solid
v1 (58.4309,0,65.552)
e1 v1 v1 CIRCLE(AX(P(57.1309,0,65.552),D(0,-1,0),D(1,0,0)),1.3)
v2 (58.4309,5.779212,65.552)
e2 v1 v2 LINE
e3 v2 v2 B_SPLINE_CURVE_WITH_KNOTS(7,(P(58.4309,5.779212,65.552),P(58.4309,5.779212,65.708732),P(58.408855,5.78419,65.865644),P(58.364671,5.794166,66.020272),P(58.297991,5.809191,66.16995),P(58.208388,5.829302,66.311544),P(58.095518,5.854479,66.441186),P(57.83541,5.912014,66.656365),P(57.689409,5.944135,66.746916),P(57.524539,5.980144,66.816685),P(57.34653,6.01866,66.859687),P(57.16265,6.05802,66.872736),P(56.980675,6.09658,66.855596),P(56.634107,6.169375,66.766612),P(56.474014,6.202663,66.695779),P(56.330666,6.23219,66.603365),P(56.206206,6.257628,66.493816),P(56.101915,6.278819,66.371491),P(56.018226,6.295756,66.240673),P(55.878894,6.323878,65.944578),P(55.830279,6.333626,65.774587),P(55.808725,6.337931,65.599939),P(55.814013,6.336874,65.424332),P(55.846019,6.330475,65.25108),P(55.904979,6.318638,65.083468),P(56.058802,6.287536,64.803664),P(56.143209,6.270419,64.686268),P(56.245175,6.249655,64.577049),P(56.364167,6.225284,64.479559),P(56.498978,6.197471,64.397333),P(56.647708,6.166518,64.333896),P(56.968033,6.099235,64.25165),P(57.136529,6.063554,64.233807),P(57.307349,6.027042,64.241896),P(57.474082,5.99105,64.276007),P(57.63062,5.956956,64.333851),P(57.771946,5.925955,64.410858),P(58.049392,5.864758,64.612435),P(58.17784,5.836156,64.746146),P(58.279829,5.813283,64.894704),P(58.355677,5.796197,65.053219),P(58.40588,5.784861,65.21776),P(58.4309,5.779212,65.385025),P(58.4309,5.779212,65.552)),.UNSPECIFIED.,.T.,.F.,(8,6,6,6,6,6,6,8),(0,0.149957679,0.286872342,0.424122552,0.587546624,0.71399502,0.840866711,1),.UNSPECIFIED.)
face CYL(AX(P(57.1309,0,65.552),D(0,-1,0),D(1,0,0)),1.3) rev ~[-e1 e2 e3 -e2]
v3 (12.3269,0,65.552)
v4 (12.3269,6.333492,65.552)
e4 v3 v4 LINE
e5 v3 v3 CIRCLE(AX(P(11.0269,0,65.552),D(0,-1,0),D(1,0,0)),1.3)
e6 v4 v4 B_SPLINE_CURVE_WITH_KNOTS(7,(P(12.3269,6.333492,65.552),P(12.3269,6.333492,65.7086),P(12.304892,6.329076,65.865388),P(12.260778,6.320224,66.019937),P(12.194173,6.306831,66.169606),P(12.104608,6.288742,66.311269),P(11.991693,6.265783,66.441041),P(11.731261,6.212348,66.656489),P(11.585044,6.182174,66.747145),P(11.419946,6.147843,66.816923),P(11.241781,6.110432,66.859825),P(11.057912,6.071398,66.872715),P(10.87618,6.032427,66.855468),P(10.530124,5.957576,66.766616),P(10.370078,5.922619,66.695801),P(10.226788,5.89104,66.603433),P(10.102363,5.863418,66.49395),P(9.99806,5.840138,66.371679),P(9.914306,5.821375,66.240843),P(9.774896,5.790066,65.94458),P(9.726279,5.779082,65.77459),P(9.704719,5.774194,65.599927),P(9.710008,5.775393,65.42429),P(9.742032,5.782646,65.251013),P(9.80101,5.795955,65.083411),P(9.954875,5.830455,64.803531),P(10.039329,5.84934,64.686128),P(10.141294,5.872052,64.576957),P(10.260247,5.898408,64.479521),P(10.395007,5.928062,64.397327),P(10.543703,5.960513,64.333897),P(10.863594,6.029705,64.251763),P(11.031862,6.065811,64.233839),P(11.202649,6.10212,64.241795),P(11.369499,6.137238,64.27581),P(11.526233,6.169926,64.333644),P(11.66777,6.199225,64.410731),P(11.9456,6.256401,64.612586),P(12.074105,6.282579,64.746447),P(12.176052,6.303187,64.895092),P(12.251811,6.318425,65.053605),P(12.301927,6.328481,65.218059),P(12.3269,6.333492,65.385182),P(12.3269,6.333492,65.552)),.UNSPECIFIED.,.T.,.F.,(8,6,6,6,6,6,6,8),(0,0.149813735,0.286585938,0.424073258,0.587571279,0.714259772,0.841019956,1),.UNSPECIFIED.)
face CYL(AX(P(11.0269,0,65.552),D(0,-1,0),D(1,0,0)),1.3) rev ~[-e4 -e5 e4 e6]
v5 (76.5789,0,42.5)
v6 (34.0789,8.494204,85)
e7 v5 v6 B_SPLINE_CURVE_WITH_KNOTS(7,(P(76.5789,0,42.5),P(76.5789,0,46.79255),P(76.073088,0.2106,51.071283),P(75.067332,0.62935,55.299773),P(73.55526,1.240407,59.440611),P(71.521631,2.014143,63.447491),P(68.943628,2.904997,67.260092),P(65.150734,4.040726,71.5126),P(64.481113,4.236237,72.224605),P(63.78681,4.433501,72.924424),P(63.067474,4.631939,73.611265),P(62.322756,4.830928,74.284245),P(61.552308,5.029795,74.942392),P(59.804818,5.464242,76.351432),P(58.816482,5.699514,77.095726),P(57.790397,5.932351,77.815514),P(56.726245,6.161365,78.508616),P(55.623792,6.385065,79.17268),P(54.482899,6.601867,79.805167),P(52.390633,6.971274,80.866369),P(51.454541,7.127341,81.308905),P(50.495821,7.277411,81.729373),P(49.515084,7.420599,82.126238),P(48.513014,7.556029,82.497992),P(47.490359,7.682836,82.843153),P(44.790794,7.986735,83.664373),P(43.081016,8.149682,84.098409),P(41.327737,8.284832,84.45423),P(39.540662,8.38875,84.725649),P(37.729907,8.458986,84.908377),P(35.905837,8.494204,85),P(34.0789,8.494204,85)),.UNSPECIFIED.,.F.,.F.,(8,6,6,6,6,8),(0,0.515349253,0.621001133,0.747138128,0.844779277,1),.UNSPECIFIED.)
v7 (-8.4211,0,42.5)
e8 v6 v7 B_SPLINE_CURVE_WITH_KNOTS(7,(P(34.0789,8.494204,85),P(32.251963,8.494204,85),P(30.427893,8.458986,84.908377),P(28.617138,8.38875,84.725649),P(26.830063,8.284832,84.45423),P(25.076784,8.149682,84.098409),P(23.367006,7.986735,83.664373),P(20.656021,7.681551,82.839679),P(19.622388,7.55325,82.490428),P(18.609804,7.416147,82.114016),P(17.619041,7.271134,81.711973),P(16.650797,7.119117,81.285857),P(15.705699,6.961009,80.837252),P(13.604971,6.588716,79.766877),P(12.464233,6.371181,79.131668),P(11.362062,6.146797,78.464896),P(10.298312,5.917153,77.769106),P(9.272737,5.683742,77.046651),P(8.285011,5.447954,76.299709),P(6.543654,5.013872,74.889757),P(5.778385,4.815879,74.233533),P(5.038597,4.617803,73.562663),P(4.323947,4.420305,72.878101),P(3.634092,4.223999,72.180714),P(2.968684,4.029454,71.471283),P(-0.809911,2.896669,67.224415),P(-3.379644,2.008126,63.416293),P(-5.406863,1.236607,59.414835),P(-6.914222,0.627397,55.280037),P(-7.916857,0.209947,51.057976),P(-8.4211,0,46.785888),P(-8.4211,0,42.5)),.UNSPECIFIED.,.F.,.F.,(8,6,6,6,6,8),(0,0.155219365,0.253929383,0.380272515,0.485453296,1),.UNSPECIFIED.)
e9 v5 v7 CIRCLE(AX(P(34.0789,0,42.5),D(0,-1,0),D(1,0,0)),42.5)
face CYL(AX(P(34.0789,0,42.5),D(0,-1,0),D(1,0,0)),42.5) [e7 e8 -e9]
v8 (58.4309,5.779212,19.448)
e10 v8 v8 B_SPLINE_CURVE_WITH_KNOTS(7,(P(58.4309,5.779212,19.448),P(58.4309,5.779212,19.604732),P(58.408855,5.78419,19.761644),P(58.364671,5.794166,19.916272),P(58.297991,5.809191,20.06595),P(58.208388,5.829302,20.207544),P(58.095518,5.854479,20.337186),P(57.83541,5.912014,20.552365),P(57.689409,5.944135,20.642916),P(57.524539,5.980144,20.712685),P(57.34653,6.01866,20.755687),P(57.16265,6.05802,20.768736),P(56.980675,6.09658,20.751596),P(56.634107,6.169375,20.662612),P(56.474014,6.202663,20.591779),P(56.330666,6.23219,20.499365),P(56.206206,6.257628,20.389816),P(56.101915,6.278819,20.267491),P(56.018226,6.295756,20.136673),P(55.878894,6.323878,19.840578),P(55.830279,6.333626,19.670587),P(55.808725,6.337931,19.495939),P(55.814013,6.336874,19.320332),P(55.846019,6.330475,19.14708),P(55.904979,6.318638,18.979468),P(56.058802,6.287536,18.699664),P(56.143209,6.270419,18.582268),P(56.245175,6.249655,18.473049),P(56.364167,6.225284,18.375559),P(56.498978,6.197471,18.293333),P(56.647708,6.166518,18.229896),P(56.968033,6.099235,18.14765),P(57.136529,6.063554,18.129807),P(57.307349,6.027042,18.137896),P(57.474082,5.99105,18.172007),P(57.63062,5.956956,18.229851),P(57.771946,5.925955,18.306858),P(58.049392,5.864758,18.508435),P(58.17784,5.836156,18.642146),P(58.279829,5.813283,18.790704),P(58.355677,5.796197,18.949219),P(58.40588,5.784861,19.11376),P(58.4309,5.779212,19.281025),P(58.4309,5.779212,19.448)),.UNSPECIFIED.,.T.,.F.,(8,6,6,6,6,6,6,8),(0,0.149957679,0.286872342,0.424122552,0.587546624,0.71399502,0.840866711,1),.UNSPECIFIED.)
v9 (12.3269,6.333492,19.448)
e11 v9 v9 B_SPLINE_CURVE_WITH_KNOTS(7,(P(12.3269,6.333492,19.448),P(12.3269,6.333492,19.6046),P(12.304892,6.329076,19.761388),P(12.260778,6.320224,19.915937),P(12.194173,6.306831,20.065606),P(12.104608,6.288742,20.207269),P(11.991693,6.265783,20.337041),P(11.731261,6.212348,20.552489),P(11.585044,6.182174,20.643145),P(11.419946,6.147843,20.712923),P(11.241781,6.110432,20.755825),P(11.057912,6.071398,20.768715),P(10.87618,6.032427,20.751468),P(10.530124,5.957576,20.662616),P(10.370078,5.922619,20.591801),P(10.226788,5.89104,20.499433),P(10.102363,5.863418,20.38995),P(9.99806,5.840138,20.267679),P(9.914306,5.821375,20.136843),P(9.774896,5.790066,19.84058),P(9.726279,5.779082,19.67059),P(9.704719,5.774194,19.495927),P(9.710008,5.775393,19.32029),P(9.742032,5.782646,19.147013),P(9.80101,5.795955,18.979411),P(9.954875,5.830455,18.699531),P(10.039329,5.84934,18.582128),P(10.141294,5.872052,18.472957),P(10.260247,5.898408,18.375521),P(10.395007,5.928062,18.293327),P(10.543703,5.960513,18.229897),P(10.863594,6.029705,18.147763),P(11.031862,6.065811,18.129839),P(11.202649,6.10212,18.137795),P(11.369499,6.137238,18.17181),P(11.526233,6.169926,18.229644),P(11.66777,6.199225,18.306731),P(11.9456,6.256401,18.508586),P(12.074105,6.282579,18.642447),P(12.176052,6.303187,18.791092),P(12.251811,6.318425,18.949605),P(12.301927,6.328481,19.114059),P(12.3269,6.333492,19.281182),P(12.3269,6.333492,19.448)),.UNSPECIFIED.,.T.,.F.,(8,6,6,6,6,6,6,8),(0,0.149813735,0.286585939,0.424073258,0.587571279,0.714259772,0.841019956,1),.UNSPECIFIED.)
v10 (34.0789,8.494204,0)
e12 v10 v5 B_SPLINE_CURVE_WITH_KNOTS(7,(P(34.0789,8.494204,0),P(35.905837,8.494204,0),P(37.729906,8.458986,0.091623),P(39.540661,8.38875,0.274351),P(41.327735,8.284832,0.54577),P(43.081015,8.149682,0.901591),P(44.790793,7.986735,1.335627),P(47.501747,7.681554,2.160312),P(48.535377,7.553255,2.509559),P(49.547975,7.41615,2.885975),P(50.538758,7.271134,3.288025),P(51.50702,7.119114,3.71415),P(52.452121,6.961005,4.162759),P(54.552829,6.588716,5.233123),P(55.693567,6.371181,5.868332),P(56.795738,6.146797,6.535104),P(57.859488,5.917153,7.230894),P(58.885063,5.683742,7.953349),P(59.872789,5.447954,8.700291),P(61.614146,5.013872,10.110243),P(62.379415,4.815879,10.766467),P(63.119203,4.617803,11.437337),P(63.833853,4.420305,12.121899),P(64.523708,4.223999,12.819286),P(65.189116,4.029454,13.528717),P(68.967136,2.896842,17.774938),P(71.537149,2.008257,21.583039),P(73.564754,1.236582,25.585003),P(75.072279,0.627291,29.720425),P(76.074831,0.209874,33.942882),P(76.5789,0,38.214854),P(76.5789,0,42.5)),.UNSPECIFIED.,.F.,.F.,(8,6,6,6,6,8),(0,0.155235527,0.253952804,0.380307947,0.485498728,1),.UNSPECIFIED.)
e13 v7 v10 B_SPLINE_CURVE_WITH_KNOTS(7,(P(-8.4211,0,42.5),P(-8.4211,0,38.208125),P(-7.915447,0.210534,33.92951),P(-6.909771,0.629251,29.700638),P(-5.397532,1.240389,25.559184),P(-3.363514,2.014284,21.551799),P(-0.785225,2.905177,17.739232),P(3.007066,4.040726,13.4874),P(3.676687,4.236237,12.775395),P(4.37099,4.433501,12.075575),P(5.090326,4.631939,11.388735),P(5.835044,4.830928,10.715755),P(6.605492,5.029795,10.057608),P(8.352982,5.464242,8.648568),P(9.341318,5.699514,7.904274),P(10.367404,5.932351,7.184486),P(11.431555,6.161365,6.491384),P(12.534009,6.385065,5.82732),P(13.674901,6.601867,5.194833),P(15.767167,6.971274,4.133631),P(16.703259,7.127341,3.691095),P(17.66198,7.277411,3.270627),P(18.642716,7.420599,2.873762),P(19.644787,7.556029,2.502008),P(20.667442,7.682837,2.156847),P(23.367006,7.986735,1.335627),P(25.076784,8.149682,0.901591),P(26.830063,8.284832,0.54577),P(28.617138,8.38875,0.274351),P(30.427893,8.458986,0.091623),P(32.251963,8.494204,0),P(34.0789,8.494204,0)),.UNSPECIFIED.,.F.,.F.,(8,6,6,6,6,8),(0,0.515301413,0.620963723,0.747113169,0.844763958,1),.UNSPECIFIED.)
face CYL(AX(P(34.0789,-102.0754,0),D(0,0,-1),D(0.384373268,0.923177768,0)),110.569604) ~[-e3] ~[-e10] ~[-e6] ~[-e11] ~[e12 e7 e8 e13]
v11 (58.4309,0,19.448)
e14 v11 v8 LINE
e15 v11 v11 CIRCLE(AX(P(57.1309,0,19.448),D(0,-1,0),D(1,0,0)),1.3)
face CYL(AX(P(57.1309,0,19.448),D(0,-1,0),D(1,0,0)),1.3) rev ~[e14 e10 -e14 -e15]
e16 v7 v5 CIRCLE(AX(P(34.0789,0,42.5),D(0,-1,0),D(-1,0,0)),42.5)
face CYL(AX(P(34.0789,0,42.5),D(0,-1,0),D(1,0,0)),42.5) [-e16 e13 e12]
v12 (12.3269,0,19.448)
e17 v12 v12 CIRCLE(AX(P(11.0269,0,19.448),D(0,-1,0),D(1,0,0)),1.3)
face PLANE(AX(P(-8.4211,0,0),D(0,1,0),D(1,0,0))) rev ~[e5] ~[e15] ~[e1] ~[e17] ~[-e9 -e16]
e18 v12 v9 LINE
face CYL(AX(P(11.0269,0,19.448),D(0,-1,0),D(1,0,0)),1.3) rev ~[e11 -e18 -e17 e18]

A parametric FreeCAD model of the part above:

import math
import FreeCAD as App
import Part
import Sketcher

V = App.Vector
Q = App.Units.Quantity

doc = App.newDocument("Part")
body = doc.addObject("PartDesign::Body", "Body")

sketch1 = doc.addObject("Sketcher::SketchObject", "Sketch")
body.addObject(sketch1)
sketch1.AttachmentSupport = (doc.XY_Plane, [""])
sketch1.MapMode = "FlatFace"
sketch1.addGeometry([
    Part.LineSegment(V(-8, 0, 0), V(77, 0, 0)),
    Part.ArcOfCircle(Part.Circle(V(34, -102, 0), V(0, 0, 1), 111), math.radians(67), math.radians(113)),
], False)
sketch1.addConstraint([
    Sketcher.Constraint("Coincident", 0, 1, 1, 2),
    Sketcher.Constraint("Coincident", 1, 1, 0, 2),
    Sketcher.Constraint("Horizontal", 0),
    Sketcher.Constraint("PointOnObject", 0, 1, -1),
    Sketcher.Constraint("DistanceX", 0, 1, 0, 2, Q("85 mm")),
    Sketcher.Constraint("Radius", 1, Q("110.5696 mm")),
    Sketcher.Constraint("DistanceX", -1, 1, 1, 3, Q("34.079 mm")),
])
pad1 = doc.addObject("PartDesign::Pad", "Pad")
body.addObject(pad1)
pad1.Profile = sketch1
pad1.Length = 85

sketch2 = doc.addObject("Sketcher::SketchObject", "Sketch001")
body.addObject(sketch2)
sketch2.AttachmentSupport = (doc.XZ_Plane, [""])
sketch2.MapMode = "FlatFace"
sketch2.addGeometry([
    Part.Circle(V(-0.9, 77.5, 0), V(0, 0, 1), 0.8),
    Part.Circle(V(-0.9, 7.5, 0), V(0, 0, 1), 0.8),
    Part.Circle(V(69.1, 77.5, 0), V(0, 0, 1), 0.8),
    Part.Circle(V(69.1, 7.5, 0), V(0, 0, 1), 0.8),
], False)
sketch2.addConstraint([
    Sketcher.Constraint("Equal", 0, 1),
    Sketcher.Constraint("Equal", 1, 2),
    Sketcher.Constraint("Equal", 2, 3),
    Sketcher.Constraint("Horizontal", 0, 3, 2, 3),
    Sketcher.Constraint("Horizontal", 1, 3, 3, 3),
    Sketcher.Constraint("Vertical", 0, 3, 1, 3),
    Sketcher.Constraint("Vertical", 2, 3, 3, 3),
    Sketcher.Constraint("Diameter", 0, Q("1.5 mm")),
    Sketcher.Constraint("DistanceY", 1, 3, 0, 3, Q("70 mm")),
    Sketcher.Constraint("DistanceX", 0, 3, 2, 3, Q("70 mm")),
    Sketcher.Constraint("DistanceY", -1, 1, 1, 3, Q("7.5 mm")),
    Sketcher.Constraint("DistanceX", 0, 3, -1, 1, Q("0.921 mm")),
])
pocket1 = doc.addObject("PartDesign::Pocket", "Pocket")
body.addObject(pocket1)
pocket1.Profile = sketch2
pocket1.Length = 85

sketch3 = doc.addObject("Sketcher::SketchObject", "Sketch002")
body.addObject(sketch3)
sketch3.AttachmentSupport = (doc.XZ_Plane, [""])
sketch3.MapMode = "FlatFace"
sketch3.addGeometry([
    Part.LineSegment(V(-8, 42, 0), V(-8, 0, 0)),
    Part.LineSegment(V(-8, 0, 0), V(34, 0, 0)),
    Part.ArcOfCircle(Part.Circle(V(34, 42, 0), V(0, 0, 1), 42), math.radians(180), math.radians(270)),
    Part.LineSegment(V(-8, 85, 0), V(-8, 42, 0)),
    Part.ArcOfCircle(Part.Circle(V(34, 42, 0), V(0, 0, 1), 42), math.radians(90), math.radians(180)),
    Part.LineSegment(V(34, 85, 0), V(-8, 85, 0)),
    Part.ArcOfCircle(Part.Circle(V(34, 42, 0), V(0, 0, 1), 42), math.radians(-90), math.radians(0)),
    Part.LineSegment(V(34, 0, 0), V(77, 0, 0)),
    Part.LineSegment(V(77, 0, 0), V(77, 42, 0)),
    Part.LineSegment(V(77, 85, 0), V(34, 85, 0)),
    Part.ArcOfCircle(Part.Circle(V(34, 42, 0), V(0, 0, 1), 42), math.radians(0), math.radians(90)),
    Part.LineSegment(V(77, 42, 0), V(77, 85, 0)),
], False)
sketch3.addConstraint([
    Sketcher.Constraint("Coincident", 0, 2, 1, 1),
    Sketcher.Constraint("Tangent", 1, 2, 2, 2),
    Sketcher.Constraint("Tangent", 2, 1, 0, 1),
    Sketcher.Constraint("Tangent", 3, 2, 4, 2),
    Sketcher.Constraint("Tangent", 4, 1, 5, 1),
    Sketcher.Constraint("Coincident", 5, 2, 3, 1),
    Sketcher.Constraint("Tangent", 6, 1, 7, 1),
    Sketcher.Constraint("Coincident", 7, 2, 8, 1),
    Sketcher.Constraint("Tangent", 8, 2, 6, 2),
    Sketcher.Constraint("Tangent", 9, 2, 10, 2),
    Sketcher.Constraint("Tangent", 10, 1, 11, 1),
    Sketcher.Constraint("Coincident", 11, 2, 9, 1),
    Sketcher.Constraint("Vertical", 0),
    Sketcher.Constraint("Horizontal", 1),
    Sketcher.Constraint("Vertical", 3),
    Sketcher.Constraint("Horizontal", 5),
    Sketcher.Constraint("Horizontal", 7),
    Sketcher.Constraint("Vertical", 8),
    Sketcher.Constraint("Horizontal", 9),
    Sketcher.Constraint("Vertical", 11),
    Sketcher.Constraint("Coincident", 4, 3, 2, 3),
    Sketcher.Constraint("Coincident", 6, 3, 2, 3),
    Sketcher.Constraint("Coincident", 10, 3, 2, 3),
    Sketcher.Constraint("Equal", 2, 4),
    Sketcher.Constraint("Equal", 4, 6),
    Sketcher.Constraint("Equal", 6, 10),
    Sketcher.Constraint("PointOnObject", 0, 2, -1),
    Sketcher.Constraint("Radius", 2, Q("42.5 mm")),
    Sketcher.Constraint("DistanceX", -1, 1, 2, 3, Q("34.079 mm")),
])
pocket2 = doc.addObject("PartDesign::Pocket", "Pocket001")
body.addObject(pocket2)
pocket2.Profile = sketch3
pocket2.Length = 100

sketch4 = doc.addObject("Sketcher::SketchObject", "Sketch003")
body.addObject(sketch4)
sketch4.AttachmentSupport = (doc.XZ_Plane, [""])
sketch4.MapMode = "FlatFace"
sketch4.addGeometry([
    Part.Circle(V(11, 65.6, 0), V(0, 0, 1), 1.3),
    Part.Circle(V(57.1, 65.6, 0), V(0, 0, 1), 1.3),
    Part.Circle(V(11, 19.4, 0), V(0, 0, 1), 1.3),
    Part.Circle(V(57.1, 19.4, 0), V(0, 0, 1), 1.3),
], False)
sketch4.addConstraint([
    Sketcher.Constraint("Equal", 0, 1),
    Sketcher.Constraint("Equal", 1, 2),
    Sketcher.Constraint("Equal", 2, 3),
    Sketcher.Constraint("Horizontal", 0, 3, 1, 3),
    Sketcher.Constraint("Horizontal", 2, 3, 3, 3),
    Sketcher.Constraint("Vertical", 0, 3, 2, 3),
    Sketcher.Constraint("Vertical", 1, 3, 3, 3),
    Sketcher.Constraint("Diameter", 0, Q("2.6 mm")),
    Sketcher.Constraint("DistanceX", -1, 1, 0, 3, Q("11.027 mm")),
    Sketcher.Constraint("DistanceY", -1, 1, 0, 3, Q("65.552 mm")),
    Sketcher.Constraint("DistanceX", -1, 1, 1, 3, Q("57.131 mm")),
    Sketcher.Constraint("DistanceY", -1, 1, 2, 3, Q("19.448 mm")),
])
pocket3 = doc.addObject("PartDesign::Pocket", "Pocket002")
body.addObject(pocket3)
pocket3.Profile = sketch4
pocket3.Length = 100

doc.recompute()
